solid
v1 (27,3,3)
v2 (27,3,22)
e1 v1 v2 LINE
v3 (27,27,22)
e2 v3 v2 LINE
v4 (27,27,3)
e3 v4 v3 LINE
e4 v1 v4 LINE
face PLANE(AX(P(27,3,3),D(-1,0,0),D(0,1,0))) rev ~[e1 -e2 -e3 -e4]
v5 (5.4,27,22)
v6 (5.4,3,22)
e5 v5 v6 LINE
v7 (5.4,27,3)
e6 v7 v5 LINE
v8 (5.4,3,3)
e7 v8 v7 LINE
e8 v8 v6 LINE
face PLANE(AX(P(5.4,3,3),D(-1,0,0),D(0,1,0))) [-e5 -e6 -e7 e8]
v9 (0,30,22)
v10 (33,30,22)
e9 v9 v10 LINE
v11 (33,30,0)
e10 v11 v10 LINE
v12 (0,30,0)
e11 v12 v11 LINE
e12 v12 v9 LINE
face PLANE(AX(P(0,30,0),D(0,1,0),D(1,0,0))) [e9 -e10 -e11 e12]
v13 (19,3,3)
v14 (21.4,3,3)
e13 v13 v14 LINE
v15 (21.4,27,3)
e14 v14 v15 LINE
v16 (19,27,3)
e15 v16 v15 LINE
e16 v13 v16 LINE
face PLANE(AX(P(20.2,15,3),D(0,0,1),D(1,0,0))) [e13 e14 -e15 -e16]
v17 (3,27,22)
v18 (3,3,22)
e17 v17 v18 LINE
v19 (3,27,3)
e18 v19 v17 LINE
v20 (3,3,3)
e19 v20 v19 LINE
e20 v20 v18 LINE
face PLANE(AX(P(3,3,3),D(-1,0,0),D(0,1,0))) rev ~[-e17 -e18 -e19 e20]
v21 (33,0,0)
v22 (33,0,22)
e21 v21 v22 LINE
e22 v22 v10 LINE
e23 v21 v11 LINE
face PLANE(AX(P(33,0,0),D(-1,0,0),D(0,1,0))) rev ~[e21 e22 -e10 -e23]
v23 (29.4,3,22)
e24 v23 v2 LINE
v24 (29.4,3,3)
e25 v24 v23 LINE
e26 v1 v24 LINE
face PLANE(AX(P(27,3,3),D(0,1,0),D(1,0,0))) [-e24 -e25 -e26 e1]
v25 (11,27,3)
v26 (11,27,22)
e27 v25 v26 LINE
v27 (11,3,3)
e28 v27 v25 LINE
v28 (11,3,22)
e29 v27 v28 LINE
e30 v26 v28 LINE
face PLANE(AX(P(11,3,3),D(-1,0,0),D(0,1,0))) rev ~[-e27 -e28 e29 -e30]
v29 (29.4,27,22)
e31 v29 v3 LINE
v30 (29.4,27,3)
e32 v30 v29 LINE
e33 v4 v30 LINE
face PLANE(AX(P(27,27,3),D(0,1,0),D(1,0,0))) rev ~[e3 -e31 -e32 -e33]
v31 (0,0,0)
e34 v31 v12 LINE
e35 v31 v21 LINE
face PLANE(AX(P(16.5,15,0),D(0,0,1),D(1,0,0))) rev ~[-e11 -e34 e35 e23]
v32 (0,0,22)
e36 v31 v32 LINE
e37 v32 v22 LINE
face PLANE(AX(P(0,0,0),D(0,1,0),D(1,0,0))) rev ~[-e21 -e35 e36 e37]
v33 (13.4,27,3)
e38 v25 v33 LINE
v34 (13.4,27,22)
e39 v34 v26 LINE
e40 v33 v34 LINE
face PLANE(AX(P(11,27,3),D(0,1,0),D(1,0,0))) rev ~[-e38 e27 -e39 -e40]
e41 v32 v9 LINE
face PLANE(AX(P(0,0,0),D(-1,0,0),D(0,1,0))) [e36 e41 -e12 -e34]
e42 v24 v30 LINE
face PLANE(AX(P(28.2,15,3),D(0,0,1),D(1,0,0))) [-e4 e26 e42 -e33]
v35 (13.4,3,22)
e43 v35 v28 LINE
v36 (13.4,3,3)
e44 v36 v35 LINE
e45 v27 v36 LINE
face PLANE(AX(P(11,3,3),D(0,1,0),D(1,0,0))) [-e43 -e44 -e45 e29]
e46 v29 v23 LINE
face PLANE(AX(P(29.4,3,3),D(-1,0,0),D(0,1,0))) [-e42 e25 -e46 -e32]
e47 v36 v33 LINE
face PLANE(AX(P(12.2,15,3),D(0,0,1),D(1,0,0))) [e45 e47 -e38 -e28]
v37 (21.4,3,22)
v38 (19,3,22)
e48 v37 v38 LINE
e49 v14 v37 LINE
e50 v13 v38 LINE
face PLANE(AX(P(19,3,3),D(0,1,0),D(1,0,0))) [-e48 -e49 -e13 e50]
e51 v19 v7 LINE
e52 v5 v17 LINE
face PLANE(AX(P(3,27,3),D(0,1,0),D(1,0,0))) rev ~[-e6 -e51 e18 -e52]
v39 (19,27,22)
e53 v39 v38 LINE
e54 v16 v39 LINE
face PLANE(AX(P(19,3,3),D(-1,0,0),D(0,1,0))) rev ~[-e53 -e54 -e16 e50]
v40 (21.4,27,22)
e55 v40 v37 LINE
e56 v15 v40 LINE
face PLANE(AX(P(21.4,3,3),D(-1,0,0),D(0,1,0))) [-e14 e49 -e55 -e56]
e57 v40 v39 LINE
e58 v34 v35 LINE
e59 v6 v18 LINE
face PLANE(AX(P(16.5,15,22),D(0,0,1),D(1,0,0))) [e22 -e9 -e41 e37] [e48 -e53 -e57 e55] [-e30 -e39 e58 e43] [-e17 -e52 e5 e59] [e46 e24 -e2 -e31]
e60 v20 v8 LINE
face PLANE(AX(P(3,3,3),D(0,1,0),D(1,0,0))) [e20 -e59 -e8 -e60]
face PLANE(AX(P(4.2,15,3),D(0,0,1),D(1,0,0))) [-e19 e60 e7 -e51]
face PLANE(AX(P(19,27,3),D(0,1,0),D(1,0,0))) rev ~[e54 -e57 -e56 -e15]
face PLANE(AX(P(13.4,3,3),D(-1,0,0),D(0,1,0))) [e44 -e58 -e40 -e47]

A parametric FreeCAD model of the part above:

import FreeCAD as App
import Part
import Sketcher
Q = App.Units.Quantity


def add_polygon(sketch, points):
    """Adds a closed chain of lines whose ends are joined by coincident constraints."""
    first, n = sketch.GeometryCount, len(points)
    for a, b in zip(points, points[1:] + points[:1]):
        sketch.addGeometry(Part.LineSegment(App.Vector(*a, 0), App.Vector(*b, 0)), False)
    for i in range(n):
        sketch.addConstraint(Sketcher.Constraint("Coincident", first + i, 2, first + (i + 1) % n, 1))

doc = App.newDocument("Part")
body = doc.addObject("PartDesign::Body", "Body")

sketch1 = body.newObject("Sketcher::SketchObject", "Sketch")
sketch1.AttachmentSupport = (doc.getObject("XY_Plane"), [""])
sketch1.MapMode = "FlatFace"
add_polygon(sketch1, [(0, 24), (0, 0), (2.4, 0), (2.4, 24)])
sketch1.addConstraint([
    Sketcher.Constraint("Vertical", 0),
    Sketcher.Constraint("Horizontal", 1),
    Sketcher.Constraint("Vertical", 2),
    Sketcher.Constraint("Horizontal", 3),
    Sketcher.Constraint("Coincident", 0, 2, -1, 1),
    Sketcher.Constraint("DistanceY", 0, 2, 0, 1, Q("24 mm")),
    Sketcher.Constraint("DistanceX", 1, 1, 1, 2, Q("2.4 mm")),
])
pad1 = body.newObject("PartDesign::Pad", "Pad")
pad1.Profile = sketch1
pad1.Length = 22
body2 = doc.addObject("PartDesign::Body", "Body001")

sketch2 = body2.newObject("Sketcher::SketchObject", "Sketch001")
sketch2.AttachmentSupport = (doc.getObject("XY_Plane001"), [""])
sketch2.MapMode = "FlatFace"
add_polygon(sketch2, [(8, 24), (8, 0), (10.4, 0), (10.4, 24)])
sketch2.addConstraint([
    Sketcher.Constraint("Vertical", 0),
    Sketcher.Constraint("Horizontal", 1),
    Sketcher.Constraint("Vertical", 2),
    Sketcher.Constraint("Horizontal", 3),
    Sketcher.Constraint("PointOnObject", 0, 2, -1),
    Sketcher.Constraint("DistanceY", 0, 2, 0, 1, Q("24 mm")),
    Sketcher.Constraint("DistanceX", 1, 1, 1, 2, Q("2.4 mm")),
    Sketcher.Constraint("DistanceX", -1, 1, 0, 2, Q("8 mm")),
])
pad2 = body2.newObject("PartDesign::Pad", "Pad001")
pad2.Profile = sketch2
pad2.Length = 22
body3 = doc.addObject("PartDesign::Body", "Body002")

sketch3 = body3.newObject("Sketcher::SketchObject", "Sketch002")
sketch3.AttachmentSupport = (doc.getObject("XY_Plane002"), [""])
sketch3.MapMode = "FlatFace"
add_polygon(sketch3, [(16, 24), (16, 0), (18.4, 0), (18.4, 24)])
sketch3.addConstraint([
    Sketcher.Constraint("Vertical", 0),
    Sketcher.Constraint("Horizontal", 1),
    Sketcher.Constraint("Vertical", 2),
    Sketcher.Constraint("Horizontal", 3),
    Sketcher.Constraint("PointOnObject", 0, 2, -1),
    Sketcher.Constraint("DistanceY", 0, 2, 0, 1, Q("24 mm")),
    Sketcher.Constraint("DistanceX", 1, 1, 1, 2, Q("2.4 mm")),
    Sketcher.Constraint("DistanceX", -1, 1, 0, 2, Q("16 mm")),
])
pad3 = body3.newObject("PartDesign::Pad", "Pad002")
pad3.Profile = sketch3
pad3.Length = 22
body4 = doc.addObject("PartDesign::Body", "Body003")
body4.AllowCompound = True

sketch4 = body4.newObject("Sketcher::SketchObject", "Sketch003")
sketch4.AttachmentSupport = (doc.getObject("XY_Plane003"), [""])
sketch4.MapMode = "FlatFace"
add_polygon(sketch4, [(24, 24), (24, 0), (26.4, 0), (26.4, 24)])
sketch4.addConstraint([
    Sketcher.Constraint("Vertical", 0),
    Sketcher.Constraint("Horizontal", 1),
    Sketcher.Constraint("Vertical", 2),
    Sketcher.Constraint("Horizontal", 3),
    Sketcher.Constraint("PointOnObject", 0, 2, -1),
    Sketcher.Constraint("DistanceY", 0, 2, 0, 1, Q("24 mm")),
    Sketcher.Constraint("DistanceX", 1, 1, 1, 2, Q("2.4 mm")),
    Sketcher.Constraint("DistanceX", -1, 1, 0, 2, Q("24 mm")),
])
pad4 = body4.newObject("PartDesign::Pad", "Pad003")
pad4.Profile = sketch4
pad4.Length = 22
doc.recompute()

boolean = body4.newObject("PartDesign::Boolean", "Boolean")
boolean.Type = "Fuse"
boolean.addObjects([body])
doc.recompute()

boolean2 = body4.newObject("PartDesign::Boolean", "Boolean001")
boolean2.Type = "Fuse"
boolean2.addObjects([body2])
doc.recompute()

boolean3 = body4.newObject("PartDesign::Boolean", "Boolean002")
boolean3.Type = "Fuse"
boolean3.addObjects([body3])
body5 = doc.addObject("PartDesign::Body", "Body004")

sketch5 = body5.newObject("Sketcher::SketchObject", "Sketch004")
sketch5.AttachmentSupport = (doc.getObject("XY_Plane004"), [""])
sketch5.MapMode = "FlatFace"
sketch5.AttachmentOffset = App.Placement(App.Vector(0, 0, -3), App.Rotation())
add_polygon(sketch5, [(-3, 27), (-3, -3), (30, -3), (30, 27)])
sketch5.addConstraint([
    Sketcher.Constraint("Vertical", 0),
    Sketcher.Constraint("Horizontal", 1),
    Sketcher.Constraint("Vertical", 2),
    Sketcher.Constraint("Horizontal", 3),
    Sketcher.Constraint("DistanceX", 1, 1, 1, 2, Q("33 mm")),
    Sketcher.Constraint("DistanceY", 0, 2, 0, 1, Q("30 mm")),
    Sketcher.Constraint("DistanceX", 0, 2, -1, 1, Q("3 mm")),
    Sketcher.Constraint("DistanceY", 0, 2, -1, 1, Q("3 mm")),
])
pad5 = body5.newObject("PartDesign::Pad", "Pad004")
pad5.Profile = sketch5
pad5.Length = 22
doc.recompute()

boolean4 = body5.newObject("PartDesign::Boolean", "Boolean003")
boolean4.Type = "Cut"
boolean4.addObjects([body4])
body6 = doc.addObject("PartDesign::Body", "Body005")
doc.recompute()

body5.Placement = App.Placement(App.Vector(3, 3, 3), App.Rotation(App.Vector(0, 0, 1), 0))
boolean5 = body6.newObject("PartDesign::Boolean", "Boolean004")
boolean5.Type = "Fuse"
boolean5.addObjects([body5])

doc.recompute()
